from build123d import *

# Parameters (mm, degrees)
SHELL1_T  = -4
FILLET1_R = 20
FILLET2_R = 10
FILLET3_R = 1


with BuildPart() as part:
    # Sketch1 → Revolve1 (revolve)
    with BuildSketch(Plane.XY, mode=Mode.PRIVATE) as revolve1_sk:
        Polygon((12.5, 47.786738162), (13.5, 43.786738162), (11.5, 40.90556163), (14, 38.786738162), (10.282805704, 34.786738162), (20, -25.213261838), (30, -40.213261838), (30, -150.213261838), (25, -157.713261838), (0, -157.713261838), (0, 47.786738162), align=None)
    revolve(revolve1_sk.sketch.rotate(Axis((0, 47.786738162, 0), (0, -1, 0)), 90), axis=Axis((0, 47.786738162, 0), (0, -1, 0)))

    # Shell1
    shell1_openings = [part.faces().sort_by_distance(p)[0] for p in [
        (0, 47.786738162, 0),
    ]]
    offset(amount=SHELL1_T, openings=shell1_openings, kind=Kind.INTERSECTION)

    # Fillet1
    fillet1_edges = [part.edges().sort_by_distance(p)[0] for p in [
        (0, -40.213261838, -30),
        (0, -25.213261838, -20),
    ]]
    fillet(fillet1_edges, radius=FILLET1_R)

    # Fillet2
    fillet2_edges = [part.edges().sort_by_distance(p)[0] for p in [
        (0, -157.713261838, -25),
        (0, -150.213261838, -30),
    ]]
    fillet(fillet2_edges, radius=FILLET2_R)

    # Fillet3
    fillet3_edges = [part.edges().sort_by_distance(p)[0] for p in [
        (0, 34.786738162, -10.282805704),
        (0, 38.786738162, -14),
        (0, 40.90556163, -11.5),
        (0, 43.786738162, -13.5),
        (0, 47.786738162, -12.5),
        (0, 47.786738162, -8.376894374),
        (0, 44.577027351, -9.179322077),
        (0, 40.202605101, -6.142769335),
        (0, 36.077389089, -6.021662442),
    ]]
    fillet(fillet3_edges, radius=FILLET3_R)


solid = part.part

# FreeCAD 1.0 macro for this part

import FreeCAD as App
import Part
import Sketcher
from FreeCAD import Vector


def edges_at(feature, points):
    """Names of the edges that pass closest to the given points."""
    edges = feature.Shape.Edges
    near = lambda p: min(range(len(edges)), key=lambda i: edges[i].distToShape(Part.Vertex(*p))[0])
    return sorted({f"Edge{near(p) + 1}" for p in points})


def faces_at(feature, points):
    """Names of the faces that lie closest to the given points."""
    faces = feature.Shape.Faces
    near = lambda p: min(range(len(faces)), key=lambda i: faces[i].distToShape(Part.Vertex(*p))[0])
    return sorted({f"Face{near(p) + 1}" for p in points})

doc = App.newDocument("Part")
params = doc.addObject("Spreadsheet::Sheet", "Params")
for row, (alias, value) in enumerate([
    ("sketch1_width", "25 mm"),
    ("sketch1_height", "110 mm"),
    ("sketch1_width2", "12.5 mm"),
    ("sketch1_height2", "205.5 mm"),
    ("revolution_angle", "360 deg"),
    ("thickness_wall", "4 mm"),
    ("fillet_radius", "20 mm"),
    ("fillet2_radius", "10 mm"),
    ("fillet3_radius", "1 mm"),
], start=1):
    params.set(f"A{row}", alias)
    params.set(f"B{row}", "=" + value)
    params.setAlias(f"B{row}", alias)

body = doc.addObject("PartDesign::Body", "Body")

# Sketch on XY plane
sketch1 = body.newObject("Sketcher::SketchObject", "Sketch")
sketch1.AttachmentSupport = (doc.getObject("XY_Plane"), [""])
sketch1.MapMode = "FlatFace"
sketch1.addGeometry(Part.LineSegment(Vector(13.5, 43.786738, 0), Vector(12.5, 47.786738, 0)), False)
sketch1.addGeometry(Part.LineSegment(Vector(12.5, 47.786738, 0), Vector(0, 47.786738, 0)), False)
sketch1.addGeometry(Part.LineSegment(Vector(0, 47.786738, 0), Vector(0, -157.713262, 0)), False)
sketch1.addGeometry(Part.LineSegment(Vector(0, -157.713262, 0), Vector(25, -157.713262, 0)), False)
sketch1.addGeometry(Part.LineSegment(Vector(25, -157.713262, 0), Vector(30, -150.213262, 0)), False)
sketch1.addGeometry(Part.LineSegment(Vector(30, -150.213262, 0), Vector(30, -40.213262, 0)), False)
sketch1.addGeometry(Part.LineSegment(Vector(30, -40.213262, 0), Vector(20, -25.213262, 0)), False)
sketch1.addGeometry(Part.LineSegment(Vector(20, -25.213262, 0), Vector(10.282806, 34.786738, 0)), False)
sketch1.addGeometry(Part.LineSegment(Vector(10.282806, 34.786738, 0), Vector(14, 38.786738, 0)), False)
sketch1.addGeometry(Part.LineSegment(Vector(14, 38.786738, 0), Vector(11.5, 40.905562, 0)), False)
sketch1.addGeometry(Part.LineSegment(Vector(11.5, 40.905562, 0), Vector(13.5, 43.786738, 0)), False)
sketch1.addConstraint(Sketcher.Constraint("Coincident", 0, 2, 1, 1))
sketch1.addConstraint(Sketcher.Constraint("Coincident", 1, 2, 2, 1))
sketch1.addConstraint(Sketcher.Constraint("Coincident", 2, 2, 3, 1))
sketch1.addConstraint(Sketcher.Constraint("Coincident", 3, 2, 4, 1))
sketch1.addConstraint(Sketcher.Constraint("Coincident", 4, 2, 5, 1))
sketch1.addConstraint(Sketcher.Constraint("Coincident", 5, 2, 6, 1))
sketch1.addConstraint(Sketcher.Constraint("Coincident", 6, 2, 7, 1))
sketch1.addConstraint(Sketcher.Constraint("Coincident", 7, 2, 8, 1))
sketch1.addConstraint(Sketcher.Constraint("Coincident", 8, 2, 9, 1))
sketch1.addConstraint(Sketcher.Constraint("Coincident", 9, 2, 10, 1))
sketch1.addConstraint(Sketcher.Constraint("Coincident", 10, 2, 0, 1))
sketch1.addConstraint(Sketcher.Constraint("Horizontal", 1))
sketch1.addConstraint(Sketcher.Constraint("Vertical", 2))
sketch1.addConstraint(Sketcher.Constraint("Horizontal", 3))
sketch1.addConstraint(Sketcher.Constraint("Vertical", 5))
sketch1.addConstraint(Sketcher.Constraint("PointOnObject", 1, 2, -2))
sketch1.addConstraint(Sketcher.Constraint("DistanceX", 3, 1, 3, 2, 25.0))
sketch1.addConstraint(Sketcher.Constraint("DistanceY", 5, 1, 5, 2, 110.0))
sketch1.addConstraint(Sketcher.Constraint("DistanceX", 1, 2, 1, 1, 12.5))
sketch1.addConstraint(Sketcher.Constraint("DistanceY", 2, 2, 2, 1, 205.5))
sketch1.addConstraint(Sketcher.Constraint("DistanceX", -1, 1, 4, 2, 30.0))
sketch1.addConstraint(Sketcher.Constraint("DistanceX", -1, 1, 6, 2, 20.0))
sketch1.addConstraint(Sketcher.Constraint("DistanceX", -1, 1, 8, 2, 14.0))
sketch1.addConstraint(Sketcher.Constraint("DistanceY", 4, 2, 0, 2, 198.0))
sketch1.addConstraint(Sketcher.Constraint("DistanceY", 5, 2, 6, 2, 15.0))
sketch1.addConstraint(Sketcher.Constraint("DistanceY", 7, 2, 0, 2, 13.0))
sketch1.addConstraint(Sketcher.Constraint("DistanceY", 7, 2, 8, 2, 4.0))
sketch1.addConstraint(Sketcher.Constraint("DistanceX", 9, 2, 0, 2, 1.0))
sketch1.addConstraint(Sketcher.Constraint("DistanceX", 9, 2, 10, 2, 2.0))
sketch1.addConstraint(Sketcher.Constraint("DistanceY", 10, 2, 0, 2, 4.0))
sketch1.addConstraint(Sketcher.Constraint("DistanceY", -1, 1, 0, 2, 47.786738))
sketch1.addConstraint(Sketcher.Constraint("DistanceY", -1, 1, 9, 2, 40.905562))
sketch1.addConstraint(Sketcher.Constraint("Distance", 7, 60.781772))
sketch1.setExpression("Constraints[16]", "Params.sketch1_width")
sketch1.setExpression("Constraints[17]", "Params.sketch1_height")
sketch1.setExpression("Constraints[18]", "Params.sketch1_width2")
sketch1.setExpression("Constraints[19]", "Params.sketch1_height2")
revolution = body.newObject("PartDesign::Revolution", "Revolution")
revolution.Profile = sketch1
revolution.ReferenceAxis = (sketch1, ["V_Axis"])
revolution.setExpression("Angle", "Params.revolution_angle")
doc.recompute()

thickness = body.newObject("PartDesign::Thickness", "Thickness")
thickness.Base = (revolution, faces_at(revolution, [(0, 47.787, 0)]))
thickness.setExpression("Value", "Params.thickness_wall")
thickness.Reversed = True
thickness.Join = "Intersection"
doc.recompute()

fillet = body.newObject("PartDesign::Fillet", "Fillet")
fillet.Base = (thickness, edges_at(thickness, [(0, -40.213, -30), (0, -25.213, -20)]))
fillet.setExpression("Radius", "Params.fillet_radius")
doc.recompute()

fillet2 = body.newObject("PartDesign::Fillet", "Fillet001")
fillet2.Base = (fillet, edges_at(fillet, [(0, -157.713, -25), (0, -150.213, -30)]))
fillet2.setExpression("Radius", "Params.fillet2_radius")
doc.recompute()

fillet3 = body.newObject("PartDesign::Fillet", "Fillet002")
fillet3.Base = (fillet2, edges_at(fillet2, [
    (0, 34.787, -10.283),
    (0, 38.787, -14),
    (0, 40.906, -11.5),
    (0, 43.787, -13.5),
    (0, 47.787, -12.5),
    (0, 47.787, -8.377),
    (0, 44.577, -9.179),
    (0, 40.203, -6.143),
    (0, 36.077, -6.022),
]))
fillet3.setExpression("Radius", "Params.fillet3_radius")

doc.recompute()
